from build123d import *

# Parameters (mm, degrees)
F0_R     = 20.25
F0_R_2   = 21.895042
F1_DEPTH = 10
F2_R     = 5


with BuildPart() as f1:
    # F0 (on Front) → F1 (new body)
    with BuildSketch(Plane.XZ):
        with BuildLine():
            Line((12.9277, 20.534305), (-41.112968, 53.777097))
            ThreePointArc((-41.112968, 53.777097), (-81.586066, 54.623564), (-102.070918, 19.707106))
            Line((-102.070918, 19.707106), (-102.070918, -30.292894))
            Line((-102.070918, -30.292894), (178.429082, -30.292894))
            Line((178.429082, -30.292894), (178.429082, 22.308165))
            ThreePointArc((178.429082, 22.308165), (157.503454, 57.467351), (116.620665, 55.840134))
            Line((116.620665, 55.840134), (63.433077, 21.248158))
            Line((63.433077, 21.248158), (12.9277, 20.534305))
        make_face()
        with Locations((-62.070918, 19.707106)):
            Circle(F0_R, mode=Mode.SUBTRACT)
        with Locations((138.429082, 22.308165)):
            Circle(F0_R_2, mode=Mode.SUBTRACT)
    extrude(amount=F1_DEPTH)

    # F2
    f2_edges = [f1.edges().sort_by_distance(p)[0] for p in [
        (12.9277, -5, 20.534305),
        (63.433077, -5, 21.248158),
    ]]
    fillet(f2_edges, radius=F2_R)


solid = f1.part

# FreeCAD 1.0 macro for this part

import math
import FreeCAD as App
import Part
import Sketcher

V = App.Vector


def edges_at(feature, points):
    """Names of the edges that pass closest to the given points."""
    edges = feature.Shape.Edges
    near = lambda p: min(range(len(edges)), key=lambda i: edges[i].distToShape(Part.Vertex(*p))[0])
    return sorted({f"Edge{near(p) + 1}" for p in points})

doc = App.newDocument("Part")
body = doc.addObject("PartDesign::Body", "Body")

# Sketch on XZ plane
sketch1 = doc.addObject("Sketcher::SketchObject", "Sketch")
body.addObject(sketch1)
sketch1.AttachmentSupport = (doc.XZ_Plane, [""])
sketch1.MapMode = "FlatFace"
sketch1.addGeometry([
    Part.LineSegment(V(13, 21, 0), V(-41, 54, 0)),  # 0
    Part.ArcOfCircle(Part.Circle(V(-62, 20, 0), V(0, 0, 1), 40), math.radians(58), math.radians(180)),  # 1
    Part.LineSegment(V(-102, 20, 0), V(-102, -30, 0)),  # 2
    Part.LineSegment(V(-102, -30, 0), V(178, -30, 0)),  # 3
    Part.LineSegment(V(178, -30, 0), V(178, 22, 0)),  # 4
    Part.ArcOfCircle(Part.Circle(V(138, 22, 0), V(0, 0, 1), 40), math.radians(0), math.radians(123)),  # 5
    Part.LineSegment(V(117, 56, 0), V(63, 21, 0)),  # 6
    Part.LineSegment(V(63, 21, 0), V(13, 21, 0)),  # 7
    Part.Circle(V(-62, 20, 0), V(0, 0, 1), 20),  # 8
    Part.Circle(V(138, 22, 0), V(0, 0, 1), 22),  # 9
], False)
sketch1.addConstraint([
    Sketcher.Constraint("Tangent", 0, 2, 1, 1),
    Sketcher.Constraint("Tangent", 1, 2, 2, 1),
    Sketcher.Constraint("Coincident", 2, 2, 3, 1),
    Sketcher.Constraint("Coincident", 3, 2, 4, 1),
    Sketcher.Constraint("Tangent", 4, 2, 5, 1),
    Sketcher.Constraint("Tangent", 5, 2, 6, 1),
    Sketcher.Constraint("Coincident", 6, 2, 7, 1),
    Sketcher.Constraint("Coincident", 7, 2, 0, 1),
    Sketcher.Constraint("Vertical", 2),
    Sketcher.Constraint("Horizontal", 3),
    Sketcher.Constraint("Vertical", 4),
    Sketcher.Constraint("Coincident", 8, 3, 1, 3),
    Sketcher.Constraint("Coincident", 9, 3, 5, 3),
    Sketcher.Constraint("Equal", 1, 5),
    Sketcher.Constraint("Radius", 1, 39.999999),
    Sketcher.Constraint("Diameter", 8, 40.5),
    Sketcher.Constraint("DistanceY", 2, 2, 2, 1, 50.0),
    Sketcher.Constraint("DistanceX", 3, 1, 3, 2, 280.5),
    Sketcher.Constraint("Diameter", 9, 43.790084),
    Sketcher.Constraint("DistanceY", 4, 1, 4, 2, 52.601059),
    Sketcher.Constraint("DistanceX", -1, 1, 7, 2, 12.9277),
    Sketcher.Constraint("DistanceY", 8, 3, 7, 2, 0.827199),
    Sketcher.Constraint("Distance", 6, 63.44702),
    Sketcher.Constraint("Distance", 7, 50.510422),
    Sketcher.Constraint("DistanceY", -1, 1, 6, 2, 21.248158),
    Sketcher.Constraint("DistanceY", 5, 3, 5, 2, 33.531968),
])
pad1 = doc.addObject("PartDesign::Pad", "Pad")
body.addObject(pad1)
pad1.Profile = sketch1
pad1.Length = 10
doc.recompute()

fillet = doc.addObject("PartDesign::Fillet", "Fillet")
body.addObject(fillet)
fillet.Base = (pad1, edges_at(pad1, [(12.928, -5, 20.534), (63.433, -5, 21.248)]))
fillet.Radius = 5

doc.recompute()
